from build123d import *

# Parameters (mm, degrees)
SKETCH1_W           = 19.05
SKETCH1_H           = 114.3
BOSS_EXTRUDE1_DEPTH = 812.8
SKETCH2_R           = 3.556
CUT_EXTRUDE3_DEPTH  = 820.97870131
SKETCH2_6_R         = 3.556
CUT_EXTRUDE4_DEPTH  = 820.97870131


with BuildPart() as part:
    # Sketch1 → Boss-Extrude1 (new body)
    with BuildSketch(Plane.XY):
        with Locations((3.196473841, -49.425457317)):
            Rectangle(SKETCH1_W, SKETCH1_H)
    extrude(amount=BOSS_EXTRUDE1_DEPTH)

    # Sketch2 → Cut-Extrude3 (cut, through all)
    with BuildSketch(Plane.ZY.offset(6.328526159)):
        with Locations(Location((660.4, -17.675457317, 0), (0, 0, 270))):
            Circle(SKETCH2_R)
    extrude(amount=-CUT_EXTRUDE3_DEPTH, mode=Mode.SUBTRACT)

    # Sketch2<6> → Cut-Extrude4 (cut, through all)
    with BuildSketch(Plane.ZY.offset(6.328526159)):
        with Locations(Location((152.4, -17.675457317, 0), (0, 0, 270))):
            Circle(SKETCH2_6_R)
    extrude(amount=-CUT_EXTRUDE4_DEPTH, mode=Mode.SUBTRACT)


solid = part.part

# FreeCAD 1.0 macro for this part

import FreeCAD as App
import Part
import Sketcher
from FreeCAD import Vector
Q = App.Units.Quantity

doc = App.newDocument("Part")
body = doc.addObject("PartDesign::Body", "Body")

# Sketch on XY plane
sketch1 = body.newObject("Sketcher::SketchObject", "Sketch")
sketch1.AttachmentSupport = (doc.getObject("XY_Plane"), [""])
sketch1.MapMode = "FlatFace"
sketch1.addGeometry([
    Part.LineSegment(Vector(-6.328526, 7.724543, 0), Vector(-6.328526, -106.575457, 0)),
    Part.LineSegment(Vector(-6.328526, -106.575457, 0), Vector(12.721474, -106.575457, 0)),
    Part.LineSegment(Vector(12.721474, -106.575457, 0), Vector(12.721474, 7.724543, 0)),
    Part.LineSegment(Vector(12.721474, 7.724543, 0), Vector(-6.328526, 7.724543, 0)),
], False)
sketch1.addConstraint([
    Sketcher.Constraint("Coincident", 0, 2, 1, 1),
    Sketcher.Constraint("Coincident", 1, 2, 2, 1),
    Sketcher.Constraint("Coincident", 2, 2, 3, 1),
    Sketcher.Constraint("Coincident", 3, 2, 0, 1),
    Sketcher.Constraint("Vertical", 0),
    Sketcher.Constraint("Horizontal", 1),
    Sketcher.Constraint("Vertical", 2),
    Sketcher.Constraint("Horizontal", 3),
    Sketcher.Constraint("DistanceY", 0, 2, 0, 1, Q("4.5 in")),
    Sketcher.Constraint("DistanceX", 1, 1, 1, 2, Q("0.75 in")),
    Sketcher.Constraint("DistanceX", 0, 2, -1, 1, 6.328526),
    Sketcher.Constraint("DistanceY", 0, 2, -1, 1, 106.575457),
])
pad1 = body.newObject("PartDesign::Pad", "Pad")
pad1.Profile = sketch1
pad1.Length = Q("32 in")

# Sketch on YZ plane
sketch2 = body.newObject("Sketcher::SketchObject", "Sketch001")
sketch2.AttachmentSupport = (doc.getObject("YZ_Plane"), [""])
sketch2.MapMode = "FlatFace"
sketch2.AttachmentOffset = App.Placement(Vector(0, 0, -6.328526), App.Rotation())
sketch2.addGeometry(Part.Circle(Vector(-17.675457, 660.4, 0), Vector(0, 0, 1), 3.556), False)
sketch2.addConstraint([
    Sketcher.Constraint("Diameter", 0, Q("0.28 in")),
    Sketcher.Constraint("DistanceY", -1, 1, 0, 3, Q("26 in")),
    Sketcher.Constraint("DistanceX", 0, 3, -1, 1, 17.675457),
])
pocket1 = body.newObject("PartDesign::Pocket", "Pocket")
pocket1.Profile = sketch2
pocket1.Type = "ThroughAll"
pocket1.Reversed = True

# Sketch on YZ plane
sketch3 = body.newObject("Sketcher::SketchObject", "Sketch002")
sketch3.AttachmentSupport = (doc.getObject("YZ_Plane"), [""])
sketch3.MapMode = "FlatFace"
sketch3.AttachmentOffset = App.Placement(Vector(0, 0, -6.328526), App.Rotation())
sketch3.addGeometry(Part.Circle(Vector(-17.675457, 152.4, 0), Vector(0, 0, 1), 3.556), False)
sketch3.addConstraint([
    Sketcher.Constraint("Diameter", 0, Q("0.28 in")),
    Sketcher.Constraint("DistanceY", -1, 1, 0, 3, Q("6 in")),
    Sketcher.Constraint("DistanceX", 0, 3, -1, 1, 17.675457),
])
pocket2 = body.newObject("PartDesign::Pocket", "Pocket001")
pocket2.Profile = sketch3
pocket2.Type = "ThroughAll"
pocket2.Reversed = True

doc.recompute()
